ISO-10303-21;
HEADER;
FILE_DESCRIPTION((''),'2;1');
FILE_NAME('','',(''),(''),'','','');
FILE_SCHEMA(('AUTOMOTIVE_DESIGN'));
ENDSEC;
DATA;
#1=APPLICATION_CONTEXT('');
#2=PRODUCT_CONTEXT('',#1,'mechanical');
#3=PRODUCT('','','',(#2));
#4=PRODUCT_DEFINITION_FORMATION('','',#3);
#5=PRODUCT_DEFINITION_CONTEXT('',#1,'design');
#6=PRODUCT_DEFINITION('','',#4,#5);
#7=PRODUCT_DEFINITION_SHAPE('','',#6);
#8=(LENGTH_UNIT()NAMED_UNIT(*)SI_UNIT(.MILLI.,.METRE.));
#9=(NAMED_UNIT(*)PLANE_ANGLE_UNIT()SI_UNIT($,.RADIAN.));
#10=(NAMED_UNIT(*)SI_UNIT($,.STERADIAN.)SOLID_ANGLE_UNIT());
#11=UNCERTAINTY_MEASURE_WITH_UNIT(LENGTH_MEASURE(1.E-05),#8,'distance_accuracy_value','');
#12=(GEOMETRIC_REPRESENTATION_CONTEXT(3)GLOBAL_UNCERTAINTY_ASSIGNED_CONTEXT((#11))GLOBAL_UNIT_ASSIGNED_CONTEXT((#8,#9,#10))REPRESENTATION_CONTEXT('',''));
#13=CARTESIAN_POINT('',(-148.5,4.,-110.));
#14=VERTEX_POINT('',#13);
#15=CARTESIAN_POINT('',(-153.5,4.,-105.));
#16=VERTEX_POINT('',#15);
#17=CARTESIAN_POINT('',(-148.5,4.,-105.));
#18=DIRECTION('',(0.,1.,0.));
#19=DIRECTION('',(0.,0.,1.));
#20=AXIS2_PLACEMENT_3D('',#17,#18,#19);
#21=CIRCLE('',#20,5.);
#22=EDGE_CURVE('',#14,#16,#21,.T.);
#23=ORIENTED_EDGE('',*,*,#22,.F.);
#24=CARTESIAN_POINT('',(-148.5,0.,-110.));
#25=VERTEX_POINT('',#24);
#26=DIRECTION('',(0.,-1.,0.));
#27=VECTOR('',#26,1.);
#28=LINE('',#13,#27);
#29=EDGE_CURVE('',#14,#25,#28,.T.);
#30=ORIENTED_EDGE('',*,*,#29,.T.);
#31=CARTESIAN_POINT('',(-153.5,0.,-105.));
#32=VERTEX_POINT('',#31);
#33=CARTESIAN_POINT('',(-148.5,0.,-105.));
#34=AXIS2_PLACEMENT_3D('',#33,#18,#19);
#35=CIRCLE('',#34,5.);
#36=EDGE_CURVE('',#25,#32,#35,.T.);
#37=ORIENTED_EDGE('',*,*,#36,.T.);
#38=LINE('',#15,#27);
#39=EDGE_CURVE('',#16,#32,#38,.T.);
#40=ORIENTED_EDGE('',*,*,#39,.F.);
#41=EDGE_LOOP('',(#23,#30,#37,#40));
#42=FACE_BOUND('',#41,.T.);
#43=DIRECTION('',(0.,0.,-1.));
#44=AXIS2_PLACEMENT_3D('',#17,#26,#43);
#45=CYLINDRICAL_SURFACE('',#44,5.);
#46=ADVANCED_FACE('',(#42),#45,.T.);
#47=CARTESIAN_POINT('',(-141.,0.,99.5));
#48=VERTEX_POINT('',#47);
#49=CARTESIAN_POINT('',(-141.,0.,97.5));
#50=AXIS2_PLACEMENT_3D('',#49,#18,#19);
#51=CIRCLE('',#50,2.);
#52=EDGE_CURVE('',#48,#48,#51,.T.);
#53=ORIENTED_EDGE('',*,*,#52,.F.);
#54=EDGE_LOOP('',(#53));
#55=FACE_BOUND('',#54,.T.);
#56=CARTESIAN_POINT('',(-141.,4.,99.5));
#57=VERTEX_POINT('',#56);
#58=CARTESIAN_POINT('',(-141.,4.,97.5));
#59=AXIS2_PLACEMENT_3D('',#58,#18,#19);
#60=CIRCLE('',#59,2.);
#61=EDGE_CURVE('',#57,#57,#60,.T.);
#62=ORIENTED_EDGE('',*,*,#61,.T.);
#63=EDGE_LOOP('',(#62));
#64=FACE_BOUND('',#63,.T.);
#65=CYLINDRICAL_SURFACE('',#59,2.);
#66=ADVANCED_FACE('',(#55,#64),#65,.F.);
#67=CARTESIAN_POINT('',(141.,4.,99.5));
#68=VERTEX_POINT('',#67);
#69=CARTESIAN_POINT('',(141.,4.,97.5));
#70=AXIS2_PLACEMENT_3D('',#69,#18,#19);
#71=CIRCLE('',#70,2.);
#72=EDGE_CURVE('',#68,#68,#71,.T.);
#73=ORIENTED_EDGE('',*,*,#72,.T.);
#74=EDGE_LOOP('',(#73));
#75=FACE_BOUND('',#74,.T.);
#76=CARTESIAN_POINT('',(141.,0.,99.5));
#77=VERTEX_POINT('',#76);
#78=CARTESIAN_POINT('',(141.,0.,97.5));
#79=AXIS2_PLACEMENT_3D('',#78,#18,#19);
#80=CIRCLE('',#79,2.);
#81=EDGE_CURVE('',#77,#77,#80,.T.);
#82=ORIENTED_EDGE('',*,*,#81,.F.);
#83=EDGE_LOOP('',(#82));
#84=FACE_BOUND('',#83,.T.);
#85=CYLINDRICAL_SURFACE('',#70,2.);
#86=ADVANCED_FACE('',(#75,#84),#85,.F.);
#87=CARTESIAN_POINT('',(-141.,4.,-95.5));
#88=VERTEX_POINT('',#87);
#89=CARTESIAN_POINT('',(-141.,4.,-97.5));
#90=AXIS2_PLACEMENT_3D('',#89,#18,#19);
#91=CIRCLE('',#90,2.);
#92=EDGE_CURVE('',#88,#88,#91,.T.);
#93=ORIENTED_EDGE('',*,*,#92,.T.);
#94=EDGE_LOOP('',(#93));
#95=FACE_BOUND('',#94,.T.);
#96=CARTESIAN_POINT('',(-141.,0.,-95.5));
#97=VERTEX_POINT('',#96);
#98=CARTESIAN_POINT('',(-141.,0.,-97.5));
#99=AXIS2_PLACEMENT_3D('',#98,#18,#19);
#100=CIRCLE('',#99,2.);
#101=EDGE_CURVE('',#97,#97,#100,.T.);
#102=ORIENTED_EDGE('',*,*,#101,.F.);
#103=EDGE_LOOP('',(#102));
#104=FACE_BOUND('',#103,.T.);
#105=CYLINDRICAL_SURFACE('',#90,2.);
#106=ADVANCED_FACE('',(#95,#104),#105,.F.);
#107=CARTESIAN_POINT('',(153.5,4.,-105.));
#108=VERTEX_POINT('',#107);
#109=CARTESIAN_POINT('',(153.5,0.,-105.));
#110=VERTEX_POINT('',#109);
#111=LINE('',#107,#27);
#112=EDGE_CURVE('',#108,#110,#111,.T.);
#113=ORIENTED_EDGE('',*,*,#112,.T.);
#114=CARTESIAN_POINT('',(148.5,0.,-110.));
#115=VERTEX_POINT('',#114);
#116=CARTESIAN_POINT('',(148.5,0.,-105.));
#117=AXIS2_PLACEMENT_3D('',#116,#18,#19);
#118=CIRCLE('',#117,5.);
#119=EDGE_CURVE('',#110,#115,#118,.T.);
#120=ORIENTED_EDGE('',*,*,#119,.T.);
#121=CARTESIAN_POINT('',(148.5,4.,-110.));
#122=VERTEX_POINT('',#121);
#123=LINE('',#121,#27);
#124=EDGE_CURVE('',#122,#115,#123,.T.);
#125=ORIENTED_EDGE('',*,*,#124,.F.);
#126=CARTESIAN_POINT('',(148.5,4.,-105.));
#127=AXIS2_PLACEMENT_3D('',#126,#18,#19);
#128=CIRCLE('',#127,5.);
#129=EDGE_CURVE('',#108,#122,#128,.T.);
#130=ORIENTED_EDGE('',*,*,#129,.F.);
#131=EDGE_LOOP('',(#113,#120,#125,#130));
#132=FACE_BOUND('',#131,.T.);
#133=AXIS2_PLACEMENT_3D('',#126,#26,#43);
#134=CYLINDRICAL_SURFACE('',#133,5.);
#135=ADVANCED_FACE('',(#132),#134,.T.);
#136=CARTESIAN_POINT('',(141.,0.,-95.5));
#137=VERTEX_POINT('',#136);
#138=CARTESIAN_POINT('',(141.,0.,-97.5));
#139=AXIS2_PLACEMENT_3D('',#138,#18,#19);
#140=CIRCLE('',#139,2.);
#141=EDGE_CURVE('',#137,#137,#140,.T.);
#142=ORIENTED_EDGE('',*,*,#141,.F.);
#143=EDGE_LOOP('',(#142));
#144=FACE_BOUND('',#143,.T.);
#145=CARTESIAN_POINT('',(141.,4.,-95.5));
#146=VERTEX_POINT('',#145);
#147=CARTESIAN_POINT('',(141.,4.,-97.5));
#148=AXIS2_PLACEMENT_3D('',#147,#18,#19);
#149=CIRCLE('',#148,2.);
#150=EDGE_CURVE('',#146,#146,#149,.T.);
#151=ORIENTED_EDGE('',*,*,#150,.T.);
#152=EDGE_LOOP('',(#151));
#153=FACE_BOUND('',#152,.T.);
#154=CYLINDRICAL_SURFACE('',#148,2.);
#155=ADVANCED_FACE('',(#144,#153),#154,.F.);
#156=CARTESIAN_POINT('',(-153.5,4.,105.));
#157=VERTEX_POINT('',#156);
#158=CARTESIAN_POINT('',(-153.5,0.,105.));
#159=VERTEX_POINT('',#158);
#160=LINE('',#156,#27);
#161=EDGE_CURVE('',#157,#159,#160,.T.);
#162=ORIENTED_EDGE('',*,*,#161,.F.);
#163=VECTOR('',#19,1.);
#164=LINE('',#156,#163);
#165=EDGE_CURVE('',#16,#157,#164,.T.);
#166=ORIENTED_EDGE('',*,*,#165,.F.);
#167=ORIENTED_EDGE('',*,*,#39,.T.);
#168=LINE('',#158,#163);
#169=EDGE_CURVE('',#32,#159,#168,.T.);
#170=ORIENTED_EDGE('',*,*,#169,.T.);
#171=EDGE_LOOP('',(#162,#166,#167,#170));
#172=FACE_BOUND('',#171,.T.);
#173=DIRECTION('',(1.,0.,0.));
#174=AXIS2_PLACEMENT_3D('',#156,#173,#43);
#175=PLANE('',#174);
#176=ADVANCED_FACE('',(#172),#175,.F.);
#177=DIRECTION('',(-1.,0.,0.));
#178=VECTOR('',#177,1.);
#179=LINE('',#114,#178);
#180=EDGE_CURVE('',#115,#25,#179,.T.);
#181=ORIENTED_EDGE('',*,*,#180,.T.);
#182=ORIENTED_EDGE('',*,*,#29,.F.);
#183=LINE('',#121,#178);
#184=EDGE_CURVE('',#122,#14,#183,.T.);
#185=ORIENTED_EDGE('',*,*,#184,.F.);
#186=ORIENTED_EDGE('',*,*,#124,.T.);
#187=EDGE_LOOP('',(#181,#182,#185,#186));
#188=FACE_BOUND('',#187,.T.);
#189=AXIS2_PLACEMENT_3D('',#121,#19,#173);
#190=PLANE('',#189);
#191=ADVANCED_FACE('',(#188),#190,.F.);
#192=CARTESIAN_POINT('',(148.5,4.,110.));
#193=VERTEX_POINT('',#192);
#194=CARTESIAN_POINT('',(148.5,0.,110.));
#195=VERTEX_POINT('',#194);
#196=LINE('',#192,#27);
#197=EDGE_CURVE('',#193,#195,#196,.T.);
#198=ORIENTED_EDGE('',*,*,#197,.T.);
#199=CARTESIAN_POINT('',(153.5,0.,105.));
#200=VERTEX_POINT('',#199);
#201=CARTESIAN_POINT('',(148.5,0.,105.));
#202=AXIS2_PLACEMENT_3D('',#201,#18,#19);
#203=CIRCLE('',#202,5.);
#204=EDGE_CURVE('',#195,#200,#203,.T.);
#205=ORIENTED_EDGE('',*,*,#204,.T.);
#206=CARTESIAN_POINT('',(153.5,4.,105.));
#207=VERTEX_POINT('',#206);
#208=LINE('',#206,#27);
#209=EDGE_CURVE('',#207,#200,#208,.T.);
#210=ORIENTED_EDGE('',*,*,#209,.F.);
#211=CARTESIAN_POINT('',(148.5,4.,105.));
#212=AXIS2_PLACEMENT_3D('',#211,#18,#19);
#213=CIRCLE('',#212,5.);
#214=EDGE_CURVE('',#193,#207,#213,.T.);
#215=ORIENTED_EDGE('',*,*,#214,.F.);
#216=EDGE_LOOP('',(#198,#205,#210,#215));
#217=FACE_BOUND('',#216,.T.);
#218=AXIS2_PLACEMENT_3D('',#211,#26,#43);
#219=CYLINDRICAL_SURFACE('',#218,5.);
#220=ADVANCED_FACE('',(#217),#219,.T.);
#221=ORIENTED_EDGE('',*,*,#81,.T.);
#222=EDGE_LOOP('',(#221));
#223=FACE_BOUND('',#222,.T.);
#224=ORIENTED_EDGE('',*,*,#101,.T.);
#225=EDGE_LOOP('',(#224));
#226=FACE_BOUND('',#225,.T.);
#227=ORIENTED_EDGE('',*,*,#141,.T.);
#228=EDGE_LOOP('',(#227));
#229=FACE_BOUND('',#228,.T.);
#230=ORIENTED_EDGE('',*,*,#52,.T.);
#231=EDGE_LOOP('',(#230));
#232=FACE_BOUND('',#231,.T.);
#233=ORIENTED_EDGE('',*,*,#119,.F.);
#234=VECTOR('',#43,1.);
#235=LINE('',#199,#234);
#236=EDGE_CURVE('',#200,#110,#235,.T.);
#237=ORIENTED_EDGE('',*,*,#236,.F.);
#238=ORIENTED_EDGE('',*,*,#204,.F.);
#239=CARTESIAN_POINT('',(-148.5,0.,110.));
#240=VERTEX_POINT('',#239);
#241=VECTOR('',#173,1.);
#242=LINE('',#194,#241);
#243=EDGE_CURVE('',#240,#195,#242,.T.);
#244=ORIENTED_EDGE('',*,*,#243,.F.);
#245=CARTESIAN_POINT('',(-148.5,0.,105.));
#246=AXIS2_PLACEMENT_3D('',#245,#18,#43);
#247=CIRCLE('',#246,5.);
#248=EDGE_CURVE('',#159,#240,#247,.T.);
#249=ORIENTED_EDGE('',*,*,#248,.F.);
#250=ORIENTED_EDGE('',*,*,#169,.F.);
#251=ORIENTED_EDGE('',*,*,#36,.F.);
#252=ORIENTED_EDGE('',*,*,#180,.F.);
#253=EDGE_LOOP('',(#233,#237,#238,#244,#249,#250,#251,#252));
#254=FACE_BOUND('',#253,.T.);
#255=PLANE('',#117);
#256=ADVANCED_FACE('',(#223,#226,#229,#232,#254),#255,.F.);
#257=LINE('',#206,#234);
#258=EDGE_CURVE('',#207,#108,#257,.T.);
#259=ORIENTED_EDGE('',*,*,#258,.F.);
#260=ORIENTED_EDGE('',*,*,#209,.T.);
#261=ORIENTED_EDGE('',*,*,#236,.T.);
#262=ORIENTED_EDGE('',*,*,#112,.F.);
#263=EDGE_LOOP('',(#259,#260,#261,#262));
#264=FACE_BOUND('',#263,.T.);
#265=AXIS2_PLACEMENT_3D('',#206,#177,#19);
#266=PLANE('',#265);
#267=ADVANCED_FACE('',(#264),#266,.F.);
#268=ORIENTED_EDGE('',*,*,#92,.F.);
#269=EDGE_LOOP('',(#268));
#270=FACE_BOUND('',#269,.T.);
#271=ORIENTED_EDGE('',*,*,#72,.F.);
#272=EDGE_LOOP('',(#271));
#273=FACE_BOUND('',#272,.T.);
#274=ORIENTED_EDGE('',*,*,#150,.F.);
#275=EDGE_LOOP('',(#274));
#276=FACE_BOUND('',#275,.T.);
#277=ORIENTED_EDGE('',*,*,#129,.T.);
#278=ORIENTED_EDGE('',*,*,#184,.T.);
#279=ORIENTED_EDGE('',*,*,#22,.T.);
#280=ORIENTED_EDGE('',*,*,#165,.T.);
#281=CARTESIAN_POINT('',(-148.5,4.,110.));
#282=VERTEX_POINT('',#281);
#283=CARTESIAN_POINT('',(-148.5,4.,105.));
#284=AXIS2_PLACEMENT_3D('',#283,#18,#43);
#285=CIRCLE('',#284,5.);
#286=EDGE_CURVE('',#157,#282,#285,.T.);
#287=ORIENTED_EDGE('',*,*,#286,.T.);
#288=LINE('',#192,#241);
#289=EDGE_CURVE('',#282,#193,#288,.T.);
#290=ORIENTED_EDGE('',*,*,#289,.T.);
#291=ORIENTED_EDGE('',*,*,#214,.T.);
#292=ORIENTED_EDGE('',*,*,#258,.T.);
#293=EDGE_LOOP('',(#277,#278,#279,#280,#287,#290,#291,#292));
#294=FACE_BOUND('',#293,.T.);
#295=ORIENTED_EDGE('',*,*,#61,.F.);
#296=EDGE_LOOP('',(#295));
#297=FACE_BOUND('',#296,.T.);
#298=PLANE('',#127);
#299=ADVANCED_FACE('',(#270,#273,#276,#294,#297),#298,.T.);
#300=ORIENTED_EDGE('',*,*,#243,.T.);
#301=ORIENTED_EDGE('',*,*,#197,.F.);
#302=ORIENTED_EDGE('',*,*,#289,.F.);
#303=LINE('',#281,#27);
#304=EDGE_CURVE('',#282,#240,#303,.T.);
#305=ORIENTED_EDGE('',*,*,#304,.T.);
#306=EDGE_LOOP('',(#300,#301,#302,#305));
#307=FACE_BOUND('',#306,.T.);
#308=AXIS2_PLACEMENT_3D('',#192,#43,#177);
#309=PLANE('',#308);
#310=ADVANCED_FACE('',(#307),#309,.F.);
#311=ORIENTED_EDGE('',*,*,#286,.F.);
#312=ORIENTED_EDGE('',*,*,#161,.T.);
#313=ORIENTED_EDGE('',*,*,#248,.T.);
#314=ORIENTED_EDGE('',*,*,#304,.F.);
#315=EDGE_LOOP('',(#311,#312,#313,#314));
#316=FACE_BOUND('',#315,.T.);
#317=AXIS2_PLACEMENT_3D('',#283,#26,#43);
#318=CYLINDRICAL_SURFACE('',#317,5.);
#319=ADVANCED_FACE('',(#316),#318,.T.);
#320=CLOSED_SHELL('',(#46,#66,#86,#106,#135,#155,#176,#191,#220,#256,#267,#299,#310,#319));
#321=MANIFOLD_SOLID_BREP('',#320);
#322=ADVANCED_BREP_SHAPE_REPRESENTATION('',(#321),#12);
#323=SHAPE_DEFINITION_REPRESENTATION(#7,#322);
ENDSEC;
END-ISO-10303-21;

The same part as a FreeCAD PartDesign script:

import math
import FreeCAD as App
import Part
import Sketcher

doc = App.newDocument("Part")
body = doc.addObject("PartDesign::Body", "Body")

# Sketch on XZ plane
sketch1 = body.newObject("Sketcher::SketchObject", "Sketch")
sketch1.AttachmentSupport = (doc.getObject("XZ_Plane"), [""])
sketch1.MapMode = "FlatFace"
sketch1.addGeometry([
    Part.LineSegment(App.Vector(-148.5, 110, 0), App.Vector(148.5, 110, 0)),  # 0
    Part.ArcOfCircle(Part.Circle(App.Vector(148.5, 105, 0), App.Vector(0, 0, 1), 5), math.radians(0), math.radians(90)),  # 1
    Part.LineSegment(App.Vector(153.5, 105, 0), App.Vector(153.5, -105, 0)),  # 2
    Part.ArcOfCircle(Part.Circle(App.Vector(148.5, -105, 0), App.Vector(0, 0, 1), 5), math.radians(-90), math.radians(0)),  # 3
    Part.LineSegment(App.Vector(148.5, -110, 0), App.Vector(-148.5, -110, 0)),  # 4
    Part.ArcOfCircle(Part.Circle(App.Vector(-148.5, -105, 0), App.Vector(0, 0, 1), 5), math.radians(180), math.radians(270)),  # 5
    Part.LineSegment(App.Vector(-153.5, -105, 0), App.Vector(-153.5, 105, 0)),  # 6
    Part.ArcOfCircle(Part.Circle(App.Vector(-148.5, 105, 0), App.Vector(0, 0, 1), 5), math.radians(90), math.radians(180)),  # 7
], False)
sketch1.addConstraint([
    Sketcher.Constraint("Tangent", 0, 2, 1, 2),
    Sketcher.Constraint("Tangent", 1, 1, 2, 1),
    Sketcher.Constraint("Tangent", 2, 2, 3, 2),
    Sketcher.Constraint("Tangent", 3, 1, 4, 1),
    Sketcher.Constraint("Tangent", 4, 2, 5, 2),
    Sketcher.Constraint("Tangent", 5, 1, 6, 1),
    Sketcher.Constraint("Tangent", 6, 2, 7, 2),
    Sketcher.Constraint("Tangent", 7, 1, 0, 1),
    Sketcher.Constraint("Horizontal", 0),
    Sketcher.Constraint("Vertical", 2),
    Sketcher.Constraint("Horizontal", 4),
    Sketcher.Constraint("Vertical", 6),
    Sketcher.Constraint("Equal", 1, 3),
    Sketcher.Constraint("Equal", 3, 5),
    Sketcher.Constraint("Equal", 5, 7),
    Sketcher.Constraint("Symmetric", 1, 3, 5, 3, -1, 1),
    Sketcher.Constraint("Radius", 1, 5.0),
    Sketcher.Constraint("DistanceX", 0, 1, 0, 2, 297.0),
    Sketcher.Constraint("DistanceY", 2, 2, 2, 1, 210.0),
])
pad1 = body.newObject("PartDesign::Pad", "Pad")
pad1.Profile = sketch1
pad1.Length = 4
pad1.Reversed = True

# Sketch on XZ plane
sketch2 = body.newObject("Sketcher::SketchObject", "Sketch001")
sketch2.AttachmentSupport = (doc.getObject("XZ_Plane"), [""])
sketch2.MapMode = "FlatFace"
sketch2.AttachmentOffset = App.Placement(App.Vector(0, 0, -4), App.Rotation())
sketch2.addGeometry([
    Part.Circle(App.Vector(-141, -97.5, 0), App.Vector(0, 0, 1), 2),
    Part.Circle(App.Vector(-141, 97.5, 0), App.Vector(0, 0, 1), 2),
    Part.Circle(App.Vector(141, 97.5, 0), App.Vector(0, 0, 1), 2),
    Part.Circle(App.Vector(141, -97.5, 0), App.Vector(0, 0, 1), 2),
], False)
sketch2.addConstraint([
    Sketcher.Constraint("Equal", 0, 1),
    Sketcher.Constraint("Equal", 1, 2),
    Sketcher.Constraint("Equal", 2, 3),
    Sketcher.Constraint("Symmetric", 0, 3, 2, 3, -1, 1),
    Sketcher.Constraint("Symmetric", 1, 3, 3, 3, -1, 1),
    Sketcher.Constraint("Symmetric", 1, 3, 2, 3, -2),
    Sketcher.Constraint("Diameter", 0, 4.0),
    Sketcher.Constraint("DistanceX", 0, 3, -1, 1, 141.0),
    Sketcher.Constraint("DistanceY", 0, 3, 1, 3, 195.0),
])
doc.recompute()
hole = body.newObject("PartDesign::Hole", "Hole")
hole.Profile = sketch2
hole.ThreadType = "None"
hole.Diameter = 4
hole.DepthType = "ThroughAll"
hole.Reversed = True

doc.recompute()
